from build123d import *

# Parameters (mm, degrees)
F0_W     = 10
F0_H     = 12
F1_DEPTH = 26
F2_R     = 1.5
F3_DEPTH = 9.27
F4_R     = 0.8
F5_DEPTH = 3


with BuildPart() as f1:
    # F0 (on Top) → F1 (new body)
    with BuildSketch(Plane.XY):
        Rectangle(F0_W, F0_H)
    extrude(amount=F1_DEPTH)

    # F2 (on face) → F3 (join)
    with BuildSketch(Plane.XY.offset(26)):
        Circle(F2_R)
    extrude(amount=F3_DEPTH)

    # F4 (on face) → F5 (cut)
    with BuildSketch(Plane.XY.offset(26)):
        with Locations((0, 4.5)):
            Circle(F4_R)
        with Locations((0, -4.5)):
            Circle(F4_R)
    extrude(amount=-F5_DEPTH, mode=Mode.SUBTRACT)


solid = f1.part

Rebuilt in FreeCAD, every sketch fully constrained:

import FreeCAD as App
import Part
import Sketcher


def add_polygon(sketch, points):
    """Adds a closed chain of lines whose ends are joined by coincident constraints."""
    first, n = sketch.GeometryCount, len(points)
    for a, b in zip(points, points[1:] + points[:1]):
        sketch.addGeometry(Part.LineSegment(App.Vector(*a, 0), App.Vector(*b, 0)), False)
    for i in range(n):
        sketch.addConstraint(Sketcher.Constraint("Coincident", first + i, 2, first + (i + 1) % n, 1))

doc = App.newDocument("Part")
params = doc.addObject("Spreadsheet::Sheet", "Params")
for row, (alias, value) in enumerate([
    ("sketch1_width", "10 mm"),
    ("sketch1_height", "12 mm"),
    ("pad1_length", "26 mm"),
    ("sketch2_diameter", "3 mm"),
    ("pad2_length", "9.27 mm"),
    ("sketch3_diameter", "1.6 mm"),
    ("pocket1_length", "3 mm"),
], start=1):
    params.set(f"A{row}", alias)
    params.set(f"B{row}", "=" + value)
    params.setAlias(f"B{row}", alias)

body = doc.addObject("PartDesign::Body", "Body")

sketch1 = body.newObject("Sketcher::SketchObject", "Sketch")
sketch1.AttachmentSupport = (doc.getObject("XY_Plane"), [""])
sketch1.MapMode = "FlatFace"
add_polygon(sketch1, [(-5, 6), (-5, -6), (5, -6), (5, 6)])
sketch1.addConstraint(Sketcher.Constraint("Vertical", 0))
sketch1.addConstraint(Sketcher.Constraint("Horizontal", 1))
sketch1.addConstraint(Sketcher.Constraint("Vertical", 2))
sketch1.addConstraint(Sketcher.Constraint("Horizontal", 3))
sketch1.addConstraint(Sketcher.Constraint("Symmetric", 0, 2, 2, 2, -1, 1))
sketch1.addConstraint(Sketcher.Constraint("DistanceX", 1, 1, 1, 2, 10.0))
sketch1.addConstraint(Sketcher.Constraint("DistanceY", 0, 2, 0, 1, 12.0))
sketch1.setExpression("Constraints[9]", "Params.sketch1_width")
sketch1.setExpression("Constraints[10]", "Params.sketch1_height")
pad1 = body.newObject("PartDesign::Pad", "Pad")
pad1.Profile = sketch1
pad1.setExpression("Length", "Params.pad1_length")

sketch2 = body.newObject("Sketcher::SketchObject", "Sketch001")
sketch2.AttachmentSupport = (doc.getObject("XY_Plane"), [""])
sketch2.MapMode = "FlatFace"
sketch2.AttachmentOffset = App.Placement(App.Vector(0, 0, 26), App.Rotation())
sketch2.addGeometry(Part.Circle(App.Vector(0, 0, 0), App.Vector(0, 0, 1), 1.5), False)
sketch2.addConstraint(Sketcher.Constraint("Coincident", 0, 3, -1, 1))
sketch2.addConstraint(Sketcher.Constraint("Diameter", 0, 3.0))
sketch2.setExpression("Constraints[1]", "Params.sketch2_diameter")
pad2 = body.newObject("PartDesign::Pad", "Pad001")
pad2.Profile = sketch2
pad2.setExpression("Length", "Params.pad2_length")

sketch3 = body.newObject("Sketcher::SketchObject", "Sketch002")
sketch3.AttachmentSupport = (doc.getObject("XY_Plane"), [""])
sketch3.MapMode = "FlatFace"
sketch3.AttachmentOffset = App.Placement(App.Vector(0, 0, 26), App.Rotation())
sketch3.addGeometry(Part.Circle(App.Vector(0, 4.5, 0), App.Vector(0, 0, 1), 0.8), False)
sketch3.addGeometry(Part.Circle(App.Vector(0, -4.5, 0), App.Vector(0, 0, 1), 0.8), False)
sketch3.addConstraint(Sketcher.Constraint("Equal", 0, 1))
sketch3.addConstraint(Sketcher.Constraint("Symmetric", 0, 3, 1, 3, -1, 1))
sketch3.addConstraint(Sketcher.Constraint("PointOnObject", 0, 3, -2))
sketch3.addConstraint(Sketcher.Constraint("Diameter", 0, 1.6))
sketch3.addConstraint(Sketcher.Constraint("DistanceY", 1, 3, 0, 3, 9.0))
sketch3.setExpression("Constraints[3]", "Params.sketch3_diameter")
pocket1 = body.newObject("PartDesign::Pocket", "Pocket")
pocket1.Profile = sketch3
pocket1.setExpression("Length", "Params.pocket1_length")

doc.recompute()
